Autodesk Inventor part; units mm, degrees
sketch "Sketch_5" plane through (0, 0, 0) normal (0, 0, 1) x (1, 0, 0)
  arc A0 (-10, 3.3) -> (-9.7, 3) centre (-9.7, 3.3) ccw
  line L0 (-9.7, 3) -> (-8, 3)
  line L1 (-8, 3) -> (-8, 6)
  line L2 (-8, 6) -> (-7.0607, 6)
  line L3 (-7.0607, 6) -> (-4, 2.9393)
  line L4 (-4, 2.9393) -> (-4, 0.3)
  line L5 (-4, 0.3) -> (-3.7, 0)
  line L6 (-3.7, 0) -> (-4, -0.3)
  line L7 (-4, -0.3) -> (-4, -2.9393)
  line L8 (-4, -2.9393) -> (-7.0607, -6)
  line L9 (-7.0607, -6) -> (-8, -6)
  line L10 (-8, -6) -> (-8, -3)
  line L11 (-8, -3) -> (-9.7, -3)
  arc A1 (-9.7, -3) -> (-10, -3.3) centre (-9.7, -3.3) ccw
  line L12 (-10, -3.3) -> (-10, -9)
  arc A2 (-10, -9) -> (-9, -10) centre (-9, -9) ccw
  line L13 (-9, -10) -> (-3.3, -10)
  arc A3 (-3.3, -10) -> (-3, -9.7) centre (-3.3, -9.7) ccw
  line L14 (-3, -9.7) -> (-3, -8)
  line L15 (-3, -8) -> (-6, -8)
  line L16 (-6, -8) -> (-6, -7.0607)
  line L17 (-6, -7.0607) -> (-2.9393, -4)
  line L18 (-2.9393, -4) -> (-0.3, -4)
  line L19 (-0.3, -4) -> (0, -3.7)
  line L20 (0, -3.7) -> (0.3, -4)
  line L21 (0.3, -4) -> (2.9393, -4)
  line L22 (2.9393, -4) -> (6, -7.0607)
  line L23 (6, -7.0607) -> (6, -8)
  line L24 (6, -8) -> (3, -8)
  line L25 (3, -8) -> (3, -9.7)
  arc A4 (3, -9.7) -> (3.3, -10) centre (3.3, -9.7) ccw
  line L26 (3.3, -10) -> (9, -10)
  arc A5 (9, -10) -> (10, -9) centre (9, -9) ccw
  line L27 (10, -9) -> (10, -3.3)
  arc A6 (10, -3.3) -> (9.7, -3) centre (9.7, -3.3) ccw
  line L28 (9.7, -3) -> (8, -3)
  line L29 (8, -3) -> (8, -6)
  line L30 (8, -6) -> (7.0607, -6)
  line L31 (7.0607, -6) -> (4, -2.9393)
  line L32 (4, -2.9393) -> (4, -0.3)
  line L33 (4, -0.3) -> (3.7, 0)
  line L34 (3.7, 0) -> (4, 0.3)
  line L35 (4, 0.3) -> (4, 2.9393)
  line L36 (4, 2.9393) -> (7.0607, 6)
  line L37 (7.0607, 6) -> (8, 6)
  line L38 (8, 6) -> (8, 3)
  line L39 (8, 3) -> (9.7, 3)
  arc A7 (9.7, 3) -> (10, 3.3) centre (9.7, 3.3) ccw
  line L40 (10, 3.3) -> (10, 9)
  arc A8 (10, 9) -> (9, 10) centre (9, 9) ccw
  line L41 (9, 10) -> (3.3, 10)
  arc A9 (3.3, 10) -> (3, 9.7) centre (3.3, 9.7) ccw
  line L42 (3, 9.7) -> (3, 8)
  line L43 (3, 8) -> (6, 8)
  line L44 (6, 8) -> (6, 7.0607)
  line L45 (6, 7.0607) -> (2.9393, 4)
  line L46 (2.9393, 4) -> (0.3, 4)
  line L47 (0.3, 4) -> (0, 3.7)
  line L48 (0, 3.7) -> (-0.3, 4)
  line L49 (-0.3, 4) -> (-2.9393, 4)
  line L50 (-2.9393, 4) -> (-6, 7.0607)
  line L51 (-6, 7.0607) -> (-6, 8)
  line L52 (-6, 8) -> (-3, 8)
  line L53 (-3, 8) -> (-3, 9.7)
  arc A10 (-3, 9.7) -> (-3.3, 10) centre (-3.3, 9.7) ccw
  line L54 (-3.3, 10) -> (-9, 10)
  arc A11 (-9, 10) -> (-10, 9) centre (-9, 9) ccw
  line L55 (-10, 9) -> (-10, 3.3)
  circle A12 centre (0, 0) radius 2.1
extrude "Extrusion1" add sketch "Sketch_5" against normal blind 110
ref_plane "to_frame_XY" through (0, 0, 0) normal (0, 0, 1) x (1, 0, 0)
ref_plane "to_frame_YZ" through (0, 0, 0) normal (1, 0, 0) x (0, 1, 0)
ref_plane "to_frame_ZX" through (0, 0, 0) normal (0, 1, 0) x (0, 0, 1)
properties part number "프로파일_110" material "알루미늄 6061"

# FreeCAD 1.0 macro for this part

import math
import FreeCAD as App
import Part
import Sketcher
from FreeCAD import Vector

doc = App.newDocument("Part")
body = doc.addObject("PartDesign::Body", "Body")

# Sketch on XY plane
sketch1 = body.newObject("Sketcher::SketchObject", "Sketch")
sketch1.AttachmentSupport = (doc.getObject("XY_Plane"), [""])
sketch1.MapMode = "FlatFace"
sketch1.addGeometry(Part.LineSegment(Vector(-10, 9, 0), Vector(-10, 3.3, 0)), False)
sketch1.addGeometry(Part.ArcOfCircle(Part.Circle(Vector(-9.7, 3.3, 0), Vector(0, 0, 1), 0.3), math.radians(180), math.radians(270)), False)
sketch1.addGeometry(Part.LineSegment(Vector(-9.7, 3, 0), Vector(-8, 3, 0)), False)
sketch1.addGeometry(Part.LineSegment(Vector(-8, 3, 0), Vector(-8, 6, 0)), False)
sketch1.addGeometry(Part.LineSegment(Vector(-8, 6, 0), Vector(-7.06, 6, 0)), False)
sketch1.addGeometry(Part.LineSegment(Vector(-7.06, 6, 0), Vector(-4, 2.94, 0)), False)
sketch1.addGeometry(Part.LineSegment(Vector(-4, 2.94, 0), Vector(-4, 0.3, 0)), False)
sketch1.addGeometry(Part.LineSegment(Vector(-4, 0.3, 0), Vector(-3.7, 0, 0)), False)
sketch1.addGeometry(Part.LineSegment(Vector(-3.7, 0, 0), Vector(-4, -0.3, 0)), False)
sketch1.addGeometry(Part.LineSegment(Vector(-4, -0.3, 0), Vector(-4, -2.94, 0)), False)
sketch1.addGeometry(Part.LineSegment(Vector(-4, -2.94, 0), Vector(-7.06, -6, 0)), False)
sketch1.addGeometry(Part.LineSegment(Vector(-7.06, -6, 0), Vector(-8, -6, 0)), False)
sketch1.addGeometry(Part.LineSegment(Vector(-8, -6, 0), Vector(-8, -3, 0)), False)
sketch1.addGeometry(Part.LineSegment(Vector(-8, -3, 0), Vector(-9.7, -3, 0)), False)
sketch1.addGeometry(Part.ArcOfCircle(Part.Circle(Vector(-9.7, -3.3, 0), Vector(0, 0, 1), 0.3), math.radians(90), math.radians(180)), False)
sketch1.addGeometry(Part.LineSegment(Vector(-10, -3.3, 0), Vector(-10, -9, 0)), False)
sketch1.addGeometry(Part.ArcOfCircle(Part.Circle(Vector(-9, -9, 0), Vector(0, 0, 1), 1), math.radians(180), math.radians(270)), False)
sketch1.addGeometry(Part.LineSegment(Vector(-9, -10, 0), Vector(-3.3, -10, 0)), False)
sketch1.addGeometry(Part.ArcOfCircle(Part.Circle(Vector(-3.3, -9.7, 0), Vector(0, 0, 1), 0.3), math.radians(-90), math.radians(0)), False)
sketch1.addGeometry(Part.LineSegment(Vector(-3, -9.7, 0), Vector(-3, -8, 0)), False)
sketch1.addGeometry(Part.LineSegment(Vector(-3, -8, 0), Vector(-6, -8, 0)), False)
sketch1.addGeometry(Part.LineSegment(Vector(-6, -8, 0), Vector(-6, -7.06, 0)), False)
sketch1.addGeometry(Part.LineSegment(Vector(-6, -7.06, 0), Vector(-2.94, -4, 0)), False)
sketch1.addGeometry(Part.LineSegment(Vector(-2.94, -4, 0), Vector(-0.3, -4, 0)), False)
sketch1.addGeometry(Part.LineSegment(Vector(-0.3, -4, 0), Vector(0, -3.7, 0)), False)
sketch1.addGeometry(Part.LineSegment(Vector(0, -3.7, 0), Vector(0.3, -4, 0)), False)
sketch1.addGeometry(Part.LineSegment(Vector(0.3, -4, 0), Vector(2.94, -4, 0)), False)
sketch1.addGeometry(Part.LineSegment(Vector(2.94, -4, 0), Vector(6, -7.06, 0)), False)
sketch1.addGeometry(Part.LineSegment(Vector(6, -7.06, 0), Vector(6, -8, 0)), False)
sketch1.addGeometry(Part.LineSegment(Vector(6, -8, 0), Vector(3, -8, 0)), False)
sketch1.addGeometry(Part.LineSegment(Vector(3, -8, 0), Vector(3, -9.7, 0)), False)
sketch1.addGeometry(Part.ArcOfCircle(Part.Circle(Vector(3.3, -9.7, 0), Vector(0, 0, 1), 0.3), math.radians(180), math.radians(270)), False)
sketch1.addGeometry(Part.LineSegment(Vector(3.3, -10, 0), Vector(9, -10, 0)), False)
sketch1.addGeometry(Part.ArcOfCircle(Part.Circle(Vector(9, -9, 0), Vector(0, 0, 1), 1), math.radians(-90), math.radians(0)), False)
sketch1.addGeometry(Part.LineSegment(Vector(10, -9, 0), Vector(10, -3.3, 0)), False)
sketch1.addGeometry(Part.ArcOfCircle(Part.Circle(Vector(9.7, -3.3, 0), Vector(0, 0, 1), 0.3), math.radians(0), math.radians(90)), False)
sketch1.addGeometry(Part.LineSegment(Vector(9.7, -3, 0), Vector(8, -3, 0)), False)
sketch1.addGeometry(Part.LineSegment(Vector(8, -3, 0), Vector(8, -6, 0)), False)
sketch1.addGeometry(Part.LineSegment(Vector(8, -6, 0), Vector(7.06, -6, 0)), False)
sketch1.addGeometry(Part.LineSegment(Vector(7.06, -6, 0), Vector(4, -2.94, 0)), False)
sketch1.addGeometry(Part.LineSegment(Vector(4, -2.94, 0), Vector(4, -0.3, 0)), False)
sketch1.addGeometry(Part.LineSegment(Vector(4, -0.3, 0), Vector(3.7, 0, 0)), False)
sketch1.addGeometry(Part.LineSegment(Vector(3.7, 0, 0), Vector(4, 0.3, 0)), False)
sketch1.addGeometry(Part.LineSegment(Vector(4, 0.3, 0), Vector(4, 2.94, 0)), False)
sketch1.addGeometry(Part.LineSegment(Vector(4, 2.94, 0), Vector(7.06, 6, 0)), False)
sketch1.addGeometry(Part.LineSegment(Vector(7.06, 6, 0), Vector(8, 6, 0)), False)
sketch1.addGeometry(Part.LineSegment(Vector(8, 6, 0), Vector(8, 3, 0)), False)
sketch1.addGeometry(Part.LineSegment(Vector(8, 3, 0), Vector(9.7, 3, 0)), False)
sketch1.addGeometry(Part.ArcOfCircle(Part.Circle(Vector(9.7, 3.3, 0), Vector(0, 0, 1), 0.3), math.radians(-90), math.radians(0)), False)
sketch1.addGeometry(Part.LineSegment(Vector(10, 3.3, 0), Vector(10, 9, 0)), False)
sketch1.addGeometry(Part.ArcOfCircle(Part.Circle(Vector(9, 9, 0), Vector(0, 0, 1), 1), math.radians(0), math.radians(90)), False)
sketch1.addGeometry(Part.LineSegment(Vector(9, 10, 0), Vector(3.3, 10, 0)), False)
sketch1.addGeometry(Part.ArcOfCircle(Part.Circle(Vector(3.3, 9.7, 0), Vector(0, 0, 1), 0.3), math.radians(90), math.radians(180)), False)
sketch1.addGeometry(Part.LineSegment(Vector(3, 9.7, 0), Vector(3, 8, 0)), False)
sketch1.addGeometry(Part.LineSegment(Vector(3, 8, 0), Vector(6, 8, 0)), False)
sketch1.addGeometry(Part.LineSegment(Vector(6, 8, 0), Vector(6, 7.06, 0)), False)
sketch1.addGeometry(Part.LineSegment(Vector(6, 7.06, 0), Vector(2.94, 4, 0)), False)
sketch1.addGeometry(Part.LineSegment(Vector(2.94, 4, 0), Vector(0.3, 4, 0)), False)
sketch1.addGeometry(Part.LineSegment(Vector(0.3, 4, 0), Vector(0, 3.7, 0)), False)
sketch1.addGeometry(Part.LineSegment(Vector(0, 3.7, 0), Vector(-0.3, 4, 0)), False)
sketch1.addGeometry(Part.LineSegment(Vector(-0.3, 4, 0), Vector(-2.94, 4, 0)), False)
sketch1.addGeometry(Part.LineSegment(Vector(-2.94, 4, 0), Vector(-6, 7.06, 0)), False)
sketch1.addGeometry(Part.LineSegment(Vector(-6, 7.06, 0), Vector(-6, 8, 0)), False)
sketch1.addGeometry(Part.LineSegment(Vector(-6, 8, 0), Vector(-3, 8, 0)), False)
sketch1.addGeometry(Part.LineSegment(Vector(-3, 8, 0), Vector(-3, 9.7, 0)), False)
sketch1.addGeometry(Part.ArcOfCircle(Part.Circle(Vector(-3.3, 9.7, 0), Vector(0, 0, 1), 0.3), math.radians(0), math.radians(90)), False)
sketch1.addGeometry(Part.LineSegment(Vector(-3.3, 10, 0), Vector(-9, 10, 0)), False)
sketch1.addGeometry(Part.ArcOfCircle(Part.Circle(Vector(-9, 9, 0), Vector(0, 0, 1), 1), math.radians(90), math.radians(180)), False)
sketch1.addGeometry(Part.Circle(Vector(0, 0, 0), Vector(0, 0, 1), 2.1), False)
sketch1.addConstraint(Sketcher.Constraint("Tangent", 0, 2, 1, 1))
sketch1.addConstraint(Sketcher.Constraint("Tangent", 1, 2, 2, 1))
sketch1.addConstraint(Sketcher.Constraint("Coincident", 2, 2, 3, 1))
sketch1.addConstraint(Sketcher.Constraint("Coincident", 3, 2, 4, 1))
sketch1.addConstraint(Sketcher.Constraint("Coincident", 4, 2, 5, 1))
sketch1.addConstraint(Sketcher.Constraint("Coincident", 5, 2, 6, 1))
sketch1.addConstraint(Sketcher.Constraint("Coincident", 6, 2, 7, 1))
sketch1.addConstraint(Sketcher.Constraint("Coincident", 7, 2, 8, 1))
sketch1.addConstraint(Sketcher.Constraint("Coincident", 8, 2, 9, 1))
sketch1.addConstraint(Sketcher.Constraint("Coincident", 9, 2, 10, 1))
sketch1.addConstraint(Sketcher.Constraint("Coincident", 10, 2, 11, 1))
sketch1.addConstraint(Sketcher.Constraint("Coincident", 11, 2, 12, 1))
sketch1.addConstraint(Sketcher.Constraint("Coincident", 12, 2, 13, 1))
sketch1.addConstraint(Sketcher.Constraint("Tangent", 13, 2, 14, 1))
sketch1.addConstraint(Sketcher.Constraint("Tangent", 14, 2, 15, 1))
sketch1.addConstraint(Sketcher.Constraint("Tangent", 15, 2, 16, 1))
sketch1.addConstraint(Sketcher.Constraint("Tangent", 16, 2, 17, 1))
sketch1.addConstraint(Sketcher.Constraint("Tangent", 17, 2, 18, 1))
sketch1.addConstraint(Sketcher.Constraint("Tangent", 18, 2, 19, 1))
sketch1.addConstraint(Sketcher.Constraint("Coincident", 19, 2, 20, 1))
sketch1.addConstraint(Sketcher.Constraint("Coincident", 20, 2, 21, 1))
sketch1.addConstraint(Sketcher.Constraint("Coincident", 21, 2, 22, 1))
sketch1.addConstraint(Sketcher.Constraint("Coincident", 22, 2, 23, 1))
sketch1.addConstraint(Sketcher.Constraint("Coincident", 23, 2, 24, 1))
sketch1.addConstraint(Sketcher.Constraint("Coincident", 24, 2, 25, 1))
sketch1.addConstraint(Sketcher.Constraint("Coincident", 25, 2, 26, 1))
sketch1.addConstraint(Sketcher.Constraint("Coincident", 26, 2, 27, 1))
sketch1.addConstraint(Sketcher.Constraint("Coincident", 27, 2, 28, 1))
sketch1.addConstraint(Sketcher.Constraint("Coincident", 28, 2, 29, 1))
sketch1.addConstraint(Sketcher.Constraint("Coincident", 29, 2, 30, 1))
sketch1.addConstraint(Sketcher.Constraint("Tangent", 30, 2, 31, 1))
sketch1.addConstraint(Sketcher.Constraint("Tangent", 31, 2, 32, 1))
sketch1.addConstraint(Sketcher.Constraint("Tangent", 32, 2, 33, 1))
sketch1.addConstraint(Sketcher.Constraint("Tangent", 33, 2, 34, 1))
sketch1.addConstraint(Sketcher.Constraint("Tangent", 34, 2, 35, 1))
sketch1.addConstraint(Sketcher.Constraint("Tangent", 35, 2, 36, 1))
sketch1.addConstraint(Sketcher.Constraint("Coincident", 36, 2, 37, 1))
sketch1.addConstraint(Sketcher.Constraint("Coincident", 37, 2, 38, 1))
sketch1.addConstraint(Sketcher.Constraint("Coincident", 38, 2, 39, 1))
sketch1.addConstraint(Sketcher.Constraint("Coincident", 39, 2, 40, 1))
sketch1.addConstraint(Sketcher.Constraint("Coincident", 40, 2, 41, 1))
sketch1.addConstraint(Sketcher.Constraint("Coincident", 41, 2, 42, 1))
sketch1.addConstraint(Sketcher.Constraint("Coincident", 42, 2, 43, 1))
sketch1.addConstraint(Sketcher.Constraint("Coincident", 43, 2, 44, 1))
sketch1.addConstraint(Sketcher.Constraint("Coincident", 44, 2, 45, 1))
sketch1.addConstraint(Sketcher.Constraint("Coincident", 45, 2, 46, 1))
sketch1.addConstraint(Sketcher.Constraint("Coincident", 46, 2, 47, 1))
sketch1.addConstraint(Sketcher.Constraint("Tangent", 47, 2, 48, 1))
sketch1.addConstraint(Sketcher.Constraint("Tangent", 48, 2, 49, 1))
sketch1.addConstraint(Sketcher.Constraint("Tangent", 49, 2, 50, 1))
sketch1.addConstraint(Sketcher.Constraint("Tangent", 50, 2, 51, 1))
sketch1.addConstraint(Sketcher.Constraint("Tangent", 51, 2, 52, 1))
sketch1.addConstraint(Sketcher.Constraint("Tangent", 52, 2, 53, 1))
sketch1.addConstraint(Sketcher.Constraint("Coincident", 53, 2, 54, 1))
sketch1.addConstraint(Sketcher.Constraint("Coincident", 54, 2, 55, 1))
sketch1.addConstraint(Sketcher.Constraint("Coincident", 55, 2, 56, 1))
sketch1.addConstraint(Sketcher.Constraint("Coincident", 56, 2, 57, 1))
sketch1.addConstraint(Sketcher.Constraint("Coincident", 57, 2, 58, 1))
sketch1.addConstraint(Sketcher.Constraint("Coincident", 58, 2, 59, 1))
sketch1.addConstraint(Sketcher.Constraint("Coincident", 59, 2, 60, 1))
sketch1.addConstraint(Sketcher.Constraint("Coincident", 60, 2, 61, 1))
sketch1.addConstraint(Sketcher.Constraint("Coincident", 61, 2, 62, 1))
sketch1.addConstraint(Sketcher.Constraint("Coincident", 62, 2, 63, 1))
sketch1.addConstraint(Sketcher.Constraint("Coincident", 63, 2, 64, 1))
sketch1.addConstraint(Sketcher.Constraint("Tangent", 64, 2, 65, 1))
sketch1.addConstraint(Sketcher.Constraint("Tangent", 65, 2, 66, 1))
sketch1.addConstraint(Sketcher.Constraint("Tangent", 66, 2, 67, 1))
sketch1.addConstraint(Sketcher.Constraint("Tangent", 67, 2, 0, 1))
sketch1.addConstraint(Sketcher.Constraint("Vertical", 0))
sketch1.addConstraint(Sketcher.Constraint("Horizontal", 2))
sketch1.addConstraint(Sketcher.Constraint("Vertical", 3))
sketch1.addConstraint(Sketcher.Constraint("Horizontal", 4))
sketch1.addConstraint(Sketcher.Constraint("Vertical", 6))
sketch1.addConstraint(Sketcher.Constraint("Vertical", 9))
sketch1.addConstraint(Sketcher.Constraint("Horizontal", 11))
sketch1.addConstraint(Sketcher.Constraint("Vertical", 12))
sketch1.addConstraint(Sketcher.Constraint("Horizontal", 13))
sketch1.addConstraint(Sketcher.Constraint("Vertical", 15))
sketch1.addConstraint(Sketcher.Constraint("Horizontal", 17))
sketch1.addConstraint(Sketcher.Constraint("Vertical", 19))
sketch1.addConstraint(Sketcher.Constraint("Horizontal", 20))
sketch1.addConstraint(Sketcher.Constraint("Vertical", 21))
sketch1.addConstraint(Sketcher.Constraint("Horizontal", 23))
sketch1.addConstraint(Sketcher.Constraint("Horizontal", 26))
sketch1.addConstraint(Sketcher.Constraint("Vertical", 28))
sketch1.addConstraint(Sketcher.Constraint("Horizontal", 29))
sketch1.addConstraint(Sketcher.Constraint("Vertical", 30))
sketch1.addConstraint(Sketcher.Constraint("Horizontal", 32))
sketch1.addConstraint(Sketcher.Constraint("Vertical", 34))
sketch1.addConstraint(Sketcher.Constraint("Horizontal", 36))
sketch1.addConstraint(Sketcher.Constraint("Vertical", 37))
sketch1.addConstraint(Sketcher.Constraint("Horizontal", 38))
sketch1.addConstraint(Sketcher.Constraint("Vertical", 40))
sketch1.addConstraint(Sketcher.Constraint("Vertical", 43))
sketch1.addConstraint(Sketcher.Constraint("Horizontal", 45))
sketch1.addConstraint(Sketcher.Constraint("Vertical", 46))
sketch1.addConstraint(Sketcher.Constraint("Horizontal", 47))
sketch1.addConstraint(Sketcher.Constraint("Vertical", 49))
sketch1.addConstraint(Sketcher.Constraint("Horizontal", 51))
sketch1.addConstraint(Sketcher.Constraint("Vertical", 53))
sketch1.addConstraint(Sketcher.Constraint("Horizontal", 54))
sketch1.addConstraint(Sketcher.Constraint("Vertical", 55))
sketch1.addConstraint(Sketcher.Constraint("Horizontal", 57))
sketch1.addConstraint(Sketcher.Constraint("Horizontal", 60))
sketch1.addConstraint(Sketcher.Constraint("Vertical", 62))
sketch1.addConstraint(Sketcher.Constraint("Horizontal", 63))
sketch1.addConstraint(Sketcher.Constraint("Vertical", 64))
sketch1.addConstraint(Sketcher.Constraint("Horizontal", 66))
sketch1.addConstraint(Sketcher.Constraint("Coincident", 68, 3, -1, 1))
sketch1.addConstraint(Sketcher.Constraint("Equal", 1, 14))
sketch1.addConstraint(Sketcher.Constraint("Equal", 14, 18))
sketch1.addConstraint(Sketcher.Constraint("Equal", 18, 31))
sketch1.addConstraint(Sketcher.Constraint("Equal", 16, 33))
sketch1.addConstraint(Sketcher.Constraint("Equal", 31, 35))
sketch1.addConstraint(Sketcher.Constraint("Equal", 35, 48))
sketch1.addConstraint(Sketcher.Constraint("Equal", 33, 50))
sketch1.addConstraint(Sketcher.Constraint("Equal", 48, 52))
sketch1.addConstraint(Sketcher.Constraint("Equal", 52, 65))
sketch1.addConstraint(Sketcher.Constraint("Equal", 50, 67))
sketch1.addConstraint(Sketcher.Constraint("Symmetric", 1, 3, 35, 3, -1, 1))
sketch1.addConstraint(Sketcher.Constraint("Symmetric", 14, 3, 48, 3, -1, 1))
sketch1.addConstraint(Sketcher.Constraint("Symmetric", 18, 3, 52, 3, -1, 1))
sketch1.addConstraint(Sketcher.Constraint("Symmetric", 31, 3, 65, 3, -1, 1))
sketch1.addConstraint(Sketcher.Constraint("Symmetric", 3, 2, 37, 2, -1, 1))
sketch1.addConstraint(Sketcher.Constraint("Symmetric", 5, 2, 39, 2, -1, 1))
sketch1.addConstraint(Sketcher.Constraint("Symmetric", 7, 2, 41, 2, -1, 1))
sketch1.addConstraint(Sketcher.Constraint("Symmetric", 8, 2, 42, 2, -1, 1))
sketch1.addConstraint(Sketcher.Constraint("Symmetric", 10, 2, 44, 2, -1, 1))
sketch1.addConstraint(Sketcher.Constraint("Symmetric", 20, 2, 54, 2, -1, 1))
sketch1.addConstraint(Sketcher.Constraint("Symmetric", 22, 2, 56, 2, -1, 1))
sketch1.addConstraint(Sketcher.Constraint("Symmetric", 24, 2, 58, 2, -1, 1))
sketch1.addConstraint(Sketcher.Constraint("Symmetric", 25, 2, 59, 2, -1, 1))
sketch1.addConstraint(Sketcher.Constraint("Symmetric", 27, 2, 61, 2, -1, 1))
sketch1.addConstraint(Sketcher.Constraint("Symmetric", 18, 3, 31, 3, -2))
sketch1.addConstraint(Sketcher.Constraint("Symmetric", 14, 3, 35, 3, -2))
sketch1.addConstraint(Sketcher.Constraint("Symmetric", 23, 2, 25, 2, -2))
sketch1.addConstraint(Sketcher.Constraint("Symmetric", 21, 2, 27, 2, -2))
sketch1.addConstraint(Sketcher.Constraint("Symmetric", 11, 2, 37, 2, -2))
sketch1.addConstraint(Sketcher.Constraint("Symmetric", 9, 2, 39, 2, -2))
sketch1.addConstraint(Sketcher.Constraint("PointOnObject", 7, 2, -1))
sketch1.addConstraint(Sketcher.Constraint("PointOnObject", 24, 2, -2))
sketch1.addConstraint(Sketcher.Constraint("Parallel", 5, 7))
sketch1.addConstraint(Sketcher.Constraint("Perpendicular", 7, 8))
sketch1.addConstraint(Sketcher.Constraint("Parallel", 8, 10))
sketch1.addConstraint(Sketcher.Constraint("Parallel", 10, 22))
sketch1.addConstraint(Sketcher.Constraint("Parallel", 22, 24))
sketch1.addConstraint(Sketcher.Constraint("Perpendicular", 24, 25))
sketch1.addConstraint(Sketcher.Constraint("Parallel", 25, 27))
sketch1.addConstraint(Sketcher.Constraint("Parallel", 27, 39))
sketch1.addConstraint(Sketcher.Constraint("Parallel", 39, 41))
sketch1.addConstraint(Sketcher.Constraint("Parallel", 42, 44))
sketch1.addConstraint(Sketcher.Constraint("Parallel", 44, 56))
sketch1.addConstraint(Sketcher.Constraint("Parallel", 56, 58))
sketch1.addConstraint(Sketcher.Constraint("Parallel", 59, 61))
sketch1.addConstraint(Sketcher.Constraint("Horizontal", 20, 2, 28, 2))
sketch1.addConstraint(Sketcher.Constraint("Horizontal", 54, 2, 62, 2))
sketch1.addConstraint(Sketcher.Constraint("Vertical", 37, 2, 45, 2))
sketch1.addConstraint(Sketcher.Constraint("Equal", 66, 0))
sketch1.addConstraint(Sketcher.Constraint("Equal", 63, 3))
sketch1.addConstraint(Sketcher.Constraint("Equal", 60, 6))
sketch1.addConstraint(Sketcher.Constraint("Equal", 47, 19))
sketch1.addConstraint(Sketcher.Constraint("Equal", 45, 21))
sketch1.addConstraint(Sketcher.Constraint("Equal", 10, 22))
sketch1.addConstraint(Sketcher.Constraint("Equal", 8, 24))
sketch1.addConstraint(Sketcher.Constraint("Radius", 16, 1.0))
sketch1.addConstraint(Sketcher.Constraint("Diameter", 68, 4.2))
sketch1.addConstraint(Sketcher.Constraint("Radius", 1, 0.3))
sketch1.addConstraint(Sketcher.Constraint("DistanceX", 20, 2, 20, 1, 3.0))
sketch1.addConstraint(Sketcher.Constraint("DistanceX", 2, 1, 2, 2, 1.7))
sketch1.addConstraint(Sketcher.Constraint("DistanceX", 17, 1, 17, 2, 5.7))
sketch1.addConstraint(Sketcher.Constraint("DistanceX", 16, 3, -1, 1, 9.0))
sketch1.addConstraint(Sketcher.Constraint("DistanceX", 5, 2, -1, 1, 4.0))
sketch1.addConstraint(Sketcher.Constraint("DistanceY", -1, 1, 6, 2, 0.3))
sketch1.addConstraint(Sketcher.Constraint("DistanceX", 4, 1, 4, 2, 0.9393))
pad1 = body.newObject("PartDesign::Pad", "Pad")
pad1.Profile = sketch1
pad1.Length = 110
pad1.Reversed = True

doc.recompute()
